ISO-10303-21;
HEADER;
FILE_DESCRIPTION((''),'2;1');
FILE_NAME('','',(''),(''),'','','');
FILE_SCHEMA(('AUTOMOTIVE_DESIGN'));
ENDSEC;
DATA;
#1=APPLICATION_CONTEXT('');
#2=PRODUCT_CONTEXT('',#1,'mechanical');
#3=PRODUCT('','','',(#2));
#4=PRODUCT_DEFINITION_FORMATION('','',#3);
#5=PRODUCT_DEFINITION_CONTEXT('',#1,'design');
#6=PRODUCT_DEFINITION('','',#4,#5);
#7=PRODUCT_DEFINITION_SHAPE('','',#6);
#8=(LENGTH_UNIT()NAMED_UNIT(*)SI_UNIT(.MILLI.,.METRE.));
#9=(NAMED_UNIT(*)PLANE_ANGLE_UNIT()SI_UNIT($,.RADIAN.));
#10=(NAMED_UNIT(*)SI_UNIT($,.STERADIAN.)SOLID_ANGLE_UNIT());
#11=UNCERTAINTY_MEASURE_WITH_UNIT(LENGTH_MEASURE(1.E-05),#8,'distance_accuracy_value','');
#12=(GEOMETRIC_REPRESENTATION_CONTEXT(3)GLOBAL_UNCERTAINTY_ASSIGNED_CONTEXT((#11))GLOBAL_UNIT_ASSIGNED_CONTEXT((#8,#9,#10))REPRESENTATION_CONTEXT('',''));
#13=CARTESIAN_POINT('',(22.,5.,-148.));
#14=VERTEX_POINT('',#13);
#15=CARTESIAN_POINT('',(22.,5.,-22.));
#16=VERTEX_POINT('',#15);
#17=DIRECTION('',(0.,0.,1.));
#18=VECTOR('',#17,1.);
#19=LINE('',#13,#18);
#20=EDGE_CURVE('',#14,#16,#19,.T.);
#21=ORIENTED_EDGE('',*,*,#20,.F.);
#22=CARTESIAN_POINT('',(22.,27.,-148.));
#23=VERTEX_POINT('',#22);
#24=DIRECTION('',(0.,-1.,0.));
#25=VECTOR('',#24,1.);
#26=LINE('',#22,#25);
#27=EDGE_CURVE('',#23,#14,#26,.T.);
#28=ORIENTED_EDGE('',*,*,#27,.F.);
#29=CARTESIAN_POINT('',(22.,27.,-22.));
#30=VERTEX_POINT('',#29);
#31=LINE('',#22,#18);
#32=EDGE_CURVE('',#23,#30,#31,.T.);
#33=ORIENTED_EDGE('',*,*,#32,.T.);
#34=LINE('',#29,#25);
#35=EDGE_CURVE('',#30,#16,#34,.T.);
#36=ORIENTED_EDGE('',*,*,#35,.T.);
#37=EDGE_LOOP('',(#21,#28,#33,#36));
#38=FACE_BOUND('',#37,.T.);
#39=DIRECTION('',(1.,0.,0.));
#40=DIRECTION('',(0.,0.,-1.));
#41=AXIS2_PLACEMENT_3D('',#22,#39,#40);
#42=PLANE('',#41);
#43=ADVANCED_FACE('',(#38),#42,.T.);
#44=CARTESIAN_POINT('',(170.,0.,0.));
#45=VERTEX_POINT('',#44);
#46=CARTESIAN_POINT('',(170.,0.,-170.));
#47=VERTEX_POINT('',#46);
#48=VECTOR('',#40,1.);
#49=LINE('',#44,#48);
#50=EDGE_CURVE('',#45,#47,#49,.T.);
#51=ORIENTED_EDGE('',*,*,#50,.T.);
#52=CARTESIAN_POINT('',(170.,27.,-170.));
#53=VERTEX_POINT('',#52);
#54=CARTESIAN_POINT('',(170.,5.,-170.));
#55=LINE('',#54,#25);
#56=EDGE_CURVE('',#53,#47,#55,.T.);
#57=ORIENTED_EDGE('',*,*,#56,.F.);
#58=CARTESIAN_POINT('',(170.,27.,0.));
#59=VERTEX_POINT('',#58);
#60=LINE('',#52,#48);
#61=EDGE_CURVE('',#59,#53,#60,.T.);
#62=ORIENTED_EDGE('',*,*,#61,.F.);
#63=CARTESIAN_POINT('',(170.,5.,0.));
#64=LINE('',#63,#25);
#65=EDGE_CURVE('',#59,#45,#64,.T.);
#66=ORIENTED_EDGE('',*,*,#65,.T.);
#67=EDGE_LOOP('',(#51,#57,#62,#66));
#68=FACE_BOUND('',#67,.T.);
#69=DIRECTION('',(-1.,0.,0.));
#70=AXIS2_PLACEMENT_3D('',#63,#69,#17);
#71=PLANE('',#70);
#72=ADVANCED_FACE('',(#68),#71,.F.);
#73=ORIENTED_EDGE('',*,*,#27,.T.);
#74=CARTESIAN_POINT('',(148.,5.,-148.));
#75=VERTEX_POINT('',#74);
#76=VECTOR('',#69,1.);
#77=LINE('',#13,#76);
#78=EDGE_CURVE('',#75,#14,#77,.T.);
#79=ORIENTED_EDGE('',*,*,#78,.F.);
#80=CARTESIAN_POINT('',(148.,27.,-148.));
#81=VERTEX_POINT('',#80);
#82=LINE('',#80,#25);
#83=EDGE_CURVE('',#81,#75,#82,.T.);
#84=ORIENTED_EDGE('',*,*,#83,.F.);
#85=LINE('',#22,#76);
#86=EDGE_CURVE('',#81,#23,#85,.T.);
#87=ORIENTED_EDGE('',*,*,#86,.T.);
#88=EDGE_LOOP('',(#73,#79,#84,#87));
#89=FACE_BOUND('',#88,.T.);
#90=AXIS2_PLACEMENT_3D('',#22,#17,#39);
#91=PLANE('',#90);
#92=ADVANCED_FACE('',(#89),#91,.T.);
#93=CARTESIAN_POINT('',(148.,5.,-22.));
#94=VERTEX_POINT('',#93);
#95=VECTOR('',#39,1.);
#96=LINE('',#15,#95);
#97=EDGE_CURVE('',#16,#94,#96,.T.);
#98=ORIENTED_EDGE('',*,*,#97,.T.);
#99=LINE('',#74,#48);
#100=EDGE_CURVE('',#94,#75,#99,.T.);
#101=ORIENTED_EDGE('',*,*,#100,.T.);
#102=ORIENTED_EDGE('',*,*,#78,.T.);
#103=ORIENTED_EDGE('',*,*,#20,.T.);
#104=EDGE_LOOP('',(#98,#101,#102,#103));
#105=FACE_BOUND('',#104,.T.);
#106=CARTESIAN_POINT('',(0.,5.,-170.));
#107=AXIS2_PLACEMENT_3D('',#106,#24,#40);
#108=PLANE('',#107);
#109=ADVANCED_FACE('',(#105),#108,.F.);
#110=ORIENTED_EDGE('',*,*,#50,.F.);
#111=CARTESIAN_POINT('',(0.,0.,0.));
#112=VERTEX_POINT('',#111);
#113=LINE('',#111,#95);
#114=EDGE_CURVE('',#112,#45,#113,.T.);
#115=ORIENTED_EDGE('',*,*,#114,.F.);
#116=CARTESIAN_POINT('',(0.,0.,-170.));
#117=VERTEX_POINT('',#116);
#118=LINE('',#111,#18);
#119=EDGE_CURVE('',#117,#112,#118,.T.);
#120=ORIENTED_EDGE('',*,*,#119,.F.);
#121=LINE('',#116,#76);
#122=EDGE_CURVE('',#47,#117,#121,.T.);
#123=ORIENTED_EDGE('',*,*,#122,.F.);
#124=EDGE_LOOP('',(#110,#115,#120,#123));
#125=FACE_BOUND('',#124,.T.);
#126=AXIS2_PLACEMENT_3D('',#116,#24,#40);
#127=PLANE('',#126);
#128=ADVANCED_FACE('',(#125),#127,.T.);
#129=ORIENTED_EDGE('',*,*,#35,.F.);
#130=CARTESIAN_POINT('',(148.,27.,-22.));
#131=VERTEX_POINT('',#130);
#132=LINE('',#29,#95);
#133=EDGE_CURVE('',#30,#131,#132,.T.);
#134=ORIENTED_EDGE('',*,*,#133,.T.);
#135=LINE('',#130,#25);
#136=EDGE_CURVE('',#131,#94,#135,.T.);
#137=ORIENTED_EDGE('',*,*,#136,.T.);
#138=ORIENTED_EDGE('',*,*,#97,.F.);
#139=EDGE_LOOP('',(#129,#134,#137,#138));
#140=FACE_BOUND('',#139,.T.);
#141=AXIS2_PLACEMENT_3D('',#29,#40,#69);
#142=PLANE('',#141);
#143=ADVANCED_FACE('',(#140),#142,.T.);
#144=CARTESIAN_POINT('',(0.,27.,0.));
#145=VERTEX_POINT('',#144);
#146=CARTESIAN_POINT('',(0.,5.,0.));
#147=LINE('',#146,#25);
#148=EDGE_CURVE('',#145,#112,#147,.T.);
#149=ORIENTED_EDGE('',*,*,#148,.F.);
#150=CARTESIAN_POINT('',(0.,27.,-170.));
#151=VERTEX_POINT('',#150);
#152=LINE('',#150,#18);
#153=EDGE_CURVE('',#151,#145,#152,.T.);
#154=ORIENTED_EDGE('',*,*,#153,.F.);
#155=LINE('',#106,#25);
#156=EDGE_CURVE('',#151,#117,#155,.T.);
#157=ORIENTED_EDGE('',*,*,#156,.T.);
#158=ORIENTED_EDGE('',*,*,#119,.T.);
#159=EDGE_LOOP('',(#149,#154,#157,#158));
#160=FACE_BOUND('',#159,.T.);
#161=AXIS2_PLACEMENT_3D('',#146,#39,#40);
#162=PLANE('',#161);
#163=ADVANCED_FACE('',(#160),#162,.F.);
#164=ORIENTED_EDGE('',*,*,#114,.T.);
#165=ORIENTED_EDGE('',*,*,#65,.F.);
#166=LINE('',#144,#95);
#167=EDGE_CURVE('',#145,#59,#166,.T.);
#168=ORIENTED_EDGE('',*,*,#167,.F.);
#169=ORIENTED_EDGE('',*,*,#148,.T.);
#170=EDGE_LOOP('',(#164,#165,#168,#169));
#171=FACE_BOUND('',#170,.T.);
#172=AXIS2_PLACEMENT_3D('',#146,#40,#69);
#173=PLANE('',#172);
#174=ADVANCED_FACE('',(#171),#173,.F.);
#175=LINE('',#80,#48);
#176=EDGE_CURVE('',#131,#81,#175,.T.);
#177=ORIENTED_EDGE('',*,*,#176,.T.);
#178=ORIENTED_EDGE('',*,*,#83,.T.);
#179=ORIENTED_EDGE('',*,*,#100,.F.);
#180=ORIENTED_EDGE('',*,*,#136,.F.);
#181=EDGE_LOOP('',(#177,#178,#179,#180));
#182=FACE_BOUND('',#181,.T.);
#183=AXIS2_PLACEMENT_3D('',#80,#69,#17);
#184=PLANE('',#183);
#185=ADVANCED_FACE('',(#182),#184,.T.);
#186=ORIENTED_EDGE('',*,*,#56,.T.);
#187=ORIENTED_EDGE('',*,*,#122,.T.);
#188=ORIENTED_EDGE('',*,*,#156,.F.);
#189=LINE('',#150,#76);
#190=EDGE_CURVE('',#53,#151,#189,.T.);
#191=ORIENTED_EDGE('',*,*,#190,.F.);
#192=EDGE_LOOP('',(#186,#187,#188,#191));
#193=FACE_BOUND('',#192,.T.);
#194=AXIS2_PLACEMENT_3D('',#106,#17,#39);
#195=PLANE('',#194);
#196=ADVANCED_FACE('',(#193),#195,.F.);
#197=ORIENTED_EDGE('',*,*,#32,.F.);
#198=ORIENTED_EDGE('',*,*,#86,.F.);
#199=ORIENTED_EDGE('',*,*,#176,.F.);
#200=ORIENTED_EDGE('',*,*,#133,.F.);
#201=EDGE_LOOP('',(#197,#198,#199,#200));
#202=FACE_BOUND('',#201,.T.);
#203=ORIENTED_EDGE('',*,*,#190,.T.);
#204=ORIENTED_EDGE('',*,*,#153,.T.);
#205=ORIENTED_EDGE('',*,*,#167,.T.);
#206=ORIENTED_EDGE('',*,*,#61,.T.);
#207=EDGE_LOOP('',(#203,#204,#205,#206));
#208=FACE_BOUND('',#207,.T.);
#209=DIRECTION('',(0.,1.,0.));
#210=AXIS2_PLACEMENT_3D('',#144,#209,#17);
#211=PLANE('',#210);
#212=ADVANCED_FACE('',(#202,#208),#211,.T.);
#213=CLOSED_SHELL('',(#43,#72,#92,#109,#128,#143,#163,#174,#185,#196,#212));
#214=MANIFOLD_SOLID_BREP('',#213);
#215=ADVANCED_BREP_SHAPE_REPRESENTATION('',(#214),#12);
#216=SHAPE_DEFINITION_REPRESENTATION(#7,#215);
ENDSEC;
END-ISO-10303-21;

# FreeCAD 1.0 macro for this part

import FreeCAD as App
import Part
import Sketcher

doc = App.newDocument("Part")
body = doc.addObject("PartDesign::Body", "Body")

# Sketch on XZ plane
sketch1 = body.newObject("Sketcher::SketchObject", "Sketch")
sketch1.AttachmentSupport = (doc.getObject("XZ_Plane"), [""])
sketch1.MapMode = "FlatFace"
sketch1.addGeometry(Part.LineSegment(App.Vector(0, -170, 0), App.Vector(0, 0, 0)), False)
sketch1.addGeometry(Part.LineSegment(App.Vector(0, 0, 0), App.Vector(170, 0, 0)), False)
sketch1.addGeometry(Part.LineSegment(App.Vector(170, 0, 0), App.Vector(170, -170, 0)), False)
sketch1.addGeometry(Part.LineSegment(App.Vector(170, -170, 0), App.Vector(0, -170, 0)), False)
sketch1.addConstraint(Sketcher.Constraint("Coincident", 0, 2, 1, 1))
sketch1.addConstraint(Sketcher.Constraint("Coincident", 1, 2, 2, 1))
sketch1.addConstraint(Sketcher.Constraint("Coincident", 2, 2, 3, 1))
sketch1.addConstraint(Sketcher.Constraint("Coincident", 3, 2, 0, 1))
sketch1.addConstraint(Sketcher.Constraint("Vertical", 0))
sketch1.addConstraint(Sketcher.Constraint("Horizontal", 1))
sketch1.addConstraint(Sketcher.Constraint("Vertical", 2))
sketch1.addConstraint(Sketcher.Constraint("Horizontal", 3))
sketch1.addConstraint(Sketcher.Constraint("Coincident", 0, 2, -1, 1))
sketch1.addConstraint(Sketcher.Constraint("Equal", 3, 0))
sketch1.addConstraint(Sketcher.Constraint("DistanceX", 1, 1, 1, 2, 170.0))
pad1 = body.newObject("PartDesign::Pad", "Pad")
pad1.Profile = sketch1
pad1.Length = 5
pad1.Reversed = True

# Sketch on XZ plane
sketch2 = body.newObject("Sketcher::SketchObject", "Sketch001")
sketch2.AttachmentSupport = (doc.getObject("XZ_Plane"), [""])
sketch2.MapMode = "FlatFace"
sketch2.AttachmentOffset = App.Placement(App.Vector(0, 0, -5), App.Rotation())
sketch2.addGeometry(Part.LineSegment(App.Vector(170, 0, 0), App.Vector(170, -170, 0)), False)
sketch2.addGeometry(Part.LineSegment(App.Vector(170, -170, 0), App.Vector(0, -170, 0)), False)
sketch2.addGeometry(Part.LineSegment(App.Vector(0, -170, 0), App.Vector(0, 0, 0)), False)
sketch2.addGeometry(Part.LineSegment(App.Vector(0, 0, 0), App.Vector(170, 0, 0)), False)
sketch2.addGeometry(Part.LineSegment(App.Vector(22, -148, 0), App.Vector(148, -148, 0)), False)
sketch2.addGeometry(Part.LineSegment(App.Vector(148, -148, 0), App.Vector(148, -22, 0)), False)
sketch2.addGeometry(Part.LineSegment(App.Vector(148, -22, 0), App.Vector(22, -22, 0)), False)
sketch2.addGeometry(Part.LineSegment(App.Vector(22, -22, 0), App.Vector(22, -148, 0)), False)
sketch2.addConstraint(Sketcher.Constraint("Coincident", 0, 2, 1, 1))
sketch2.addConstraint(Sketcher.Constraint("Coincident", 1, 2, 2, 1))
sketch2.addConstraint(Sketcher.Constraint("Coincident", 2, 2, 3, 1))
sketch2.addConstraint(Sketcher.Constraint("Coincident", 3, 2, 0, 1))
sketch2.addConstraint(Sketcher.Constraint("Coincident", 4, 2, 5, 1))
sketch2.addConstraint(Sketcher.Constraint("Coincident", 5, 2, 6, 1))
sketch2.addConstraint(Sketcher.Constraint("Coincident", 6, 2, 7, 1))
sketch2.addConstraint(Sketcher.Constraint("Coincident", 7, 2, 4, 1))
sketch2.addConstraint(Sketcher.Constraint("Vertical", 0))
sketch2.addConstraint(Sketcher.Constraint("Horizontal", 1))
sketch2.addConstraint(Sketcher.Constraint("Vertical", 2))
sketch2.addConstraint(Sketcher.Constraint("Horizontal", 3))
sketch2.addConstraint(Sketcher.Constraint("Horizontal", 4))
sketch2.addConstraint(Sketcher.Constraint("Vertical", 5))
sketch2.addConstraint(Sketcher.Constraint("Horizontal", 6))
sketch2.addConstraint(Sketcher.Constraint("Vertical", 7))
sketch2.addConstraint(Sketcher.Constraint("Coincident", 2, 2, -1, 1))
sketch2.addConstraint(Sketcher.Constraint("Equal", 3, 0))
sketch2.addConstraint(Sketcher.Constraint("Equal", 6, 5))
sketch2.addConstraint(Sketcher.Constraint("DistanceX", 1, 2, 1, 1, 170.0))
sketch2.addConstraint(Sketcher.Constraint("DistanceX", 4, 1, 4, 2, 126.0))
sketch2.addConstraint(Sketcher.Constraint("DistanceX", -1, 1, 4, 2, 148.0))
sketch2.addConstraint(Sketcher.Constraint("DistanceY", 4, 2, -1, 1, 148.0))
pad2 = body.newObject("PartDesign::Pad", "Pad001")
pad2.Profile = sketch2
pad2.Length = 22
pad2.Reversed = True

doc.recompute()
